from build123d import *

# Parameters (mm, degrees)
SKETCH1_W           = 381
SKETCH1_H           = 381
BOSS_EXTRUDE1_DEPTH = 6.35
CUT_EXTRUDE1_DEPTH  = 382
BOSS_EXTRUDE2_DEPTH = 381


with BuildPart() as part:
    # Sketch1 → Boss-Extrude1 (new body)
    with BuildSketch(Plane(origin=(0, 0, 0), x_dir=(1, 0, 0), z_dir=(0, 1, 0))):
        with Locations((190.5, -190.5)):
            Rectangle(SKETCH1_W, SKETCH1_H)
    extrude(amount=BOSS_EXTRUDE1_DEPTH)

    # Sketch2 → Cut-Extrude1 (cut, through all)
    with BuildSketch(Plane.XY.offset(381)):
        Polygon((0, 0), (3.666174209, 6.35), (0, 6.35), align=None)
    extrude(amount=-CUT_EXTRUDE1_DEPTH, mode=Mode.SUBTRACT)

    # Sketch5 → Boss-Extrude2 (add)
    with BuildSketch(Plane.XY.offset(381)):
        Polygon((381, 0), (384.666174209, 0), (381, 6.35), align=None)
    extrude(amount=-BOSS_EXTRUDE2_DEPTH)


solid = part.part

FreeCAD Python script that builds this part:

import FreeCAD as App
import Part
import Sketcher

V = App.Vector
Q = App.Units.Quantity


def add_polygon(sketch, points):
    """Adds a closed chain of lines whose ends are joined by coincident constraints."""
    first, n = sketch.GeometryCount, len(points)
    for a, b in zip(points, points[1:] + points[:1]):
        sketch.addGeometry(Part.LineSegment(App.Vector(*a, 0), App.Vector(*b, 0)), False)
    for i in range(n):
        sketch.addConstraint(Sketcher.Constraint("Coincident", first + i, 2, first + (i + 1) % n, 1))

doc = App.newDocument("Part")
body = doc.addObject("PartDesign::Body", "Body")

# Sketch on XZ plane
sketch1 = body.newObject("Sketcher::SketchObject", "Sketch")
sketch1.AttachmentSupport = (doc.getObject("XZ_Plane"), [""])
sketch1.MapMode = "FlatFace"
add_polygon(sketch1, [(0, 0), (0, 381), (381, 381), (381, 0)])  # lines 0-3
sketch1.addConstraint([
    Sketcher.Constraint("Vertical", 0),
    Sketcher.Constraint("Horizontal", 1),
    Sketcher.Constraint("Vertical", 2),
    Sketcher.Constraint("Horizontal", 3),
    Sketcher.Constraint("Coincident", 3, 2, -1, 1),
    Sketcher.Constraint("Equal", 3, 0),
    Sketcher.Constraint("DistanceX", 1, 1, 1, 2, Q("15 in")),
])
pad1 = body.newObject("PartDesign::Pad", "Pad")
pad1.Profile = sketch1
pad1.Length = Q("0.25 in")
pad1.Reversed = True

# Sketch on XY plane
sketch2 = body.newObject("Sketcher::SketchObject", "Sketch001")
sketch2.AttachmentSupport = (doc.getObject("XY_Plane"), [""])
sketch2.MapMode = "FlatFace"
sketch2.AttachmentOffset = App.Placement(V(0, 0, 15 * 25.4), App.Rotation())
add_polygon(sketch2, [(0, 0), (3.666174, 6.35), (0, 6.35)])  # lines 0-2
sketch2.addConstraint([
    Sketcher.Constraint("Horizontal", 1),
    Sketcher.Constraint("Vertical", 2),
    Sketcher.Constraint("Coincident", 2, 2, -1, 1),
    Sketcher.Constraint("Angle", 0, Q("60 deg")),
    Sketcher.Constraint("DistanceY", 2, 2, 2, 1, Q("0.25 in")),
])
pocket1 = body.newObject("PartDesign::Pocket", "Pocket")
pocket1.Profile = sketch2
pocket1.Type = "ThroughAll"

# Sketch on XY plane
sketch3 = body.newObject("Sketcher::SketchObject", "Sketch002")
sketch3.AttachmentSupport = (doc.getObject("XY_Plane"), [""])
sketch3.MapMode = "FlatFace"
sketch3.AttachmentOffset = App.Placement(V(0, 0, 15 * 25.4), App.Rotation())
add_polygon(sketch3, [(381, 0), (384.666174, 0), (381, 6.35)])  # lines 0-2
sketch3.addConstraint([
    Sketcher.Constraint("Horizontal", 0),
    Sketcher.Constraint("Vertical", 2),
    Sketcher.Constraint("PointOnObject", 0, 2, -1),
    Sketcher.Constraint("DistanceX", -1, 1, 1, 2, Q("15 in")),
    Sketcher.Constraint("Angle", 1, Q("120 deg")),
    Sketcher.Constraint("DistanceY", 2, 2, 2, 1, Q("0.25 in")),
])
pad2 = body.newObject("PartDesign::Pad", "Pad001")
pad2.Profile = sketch3
pad2.Length = Q("15 in")
pad2.Reversed = True

doc.recompute()
